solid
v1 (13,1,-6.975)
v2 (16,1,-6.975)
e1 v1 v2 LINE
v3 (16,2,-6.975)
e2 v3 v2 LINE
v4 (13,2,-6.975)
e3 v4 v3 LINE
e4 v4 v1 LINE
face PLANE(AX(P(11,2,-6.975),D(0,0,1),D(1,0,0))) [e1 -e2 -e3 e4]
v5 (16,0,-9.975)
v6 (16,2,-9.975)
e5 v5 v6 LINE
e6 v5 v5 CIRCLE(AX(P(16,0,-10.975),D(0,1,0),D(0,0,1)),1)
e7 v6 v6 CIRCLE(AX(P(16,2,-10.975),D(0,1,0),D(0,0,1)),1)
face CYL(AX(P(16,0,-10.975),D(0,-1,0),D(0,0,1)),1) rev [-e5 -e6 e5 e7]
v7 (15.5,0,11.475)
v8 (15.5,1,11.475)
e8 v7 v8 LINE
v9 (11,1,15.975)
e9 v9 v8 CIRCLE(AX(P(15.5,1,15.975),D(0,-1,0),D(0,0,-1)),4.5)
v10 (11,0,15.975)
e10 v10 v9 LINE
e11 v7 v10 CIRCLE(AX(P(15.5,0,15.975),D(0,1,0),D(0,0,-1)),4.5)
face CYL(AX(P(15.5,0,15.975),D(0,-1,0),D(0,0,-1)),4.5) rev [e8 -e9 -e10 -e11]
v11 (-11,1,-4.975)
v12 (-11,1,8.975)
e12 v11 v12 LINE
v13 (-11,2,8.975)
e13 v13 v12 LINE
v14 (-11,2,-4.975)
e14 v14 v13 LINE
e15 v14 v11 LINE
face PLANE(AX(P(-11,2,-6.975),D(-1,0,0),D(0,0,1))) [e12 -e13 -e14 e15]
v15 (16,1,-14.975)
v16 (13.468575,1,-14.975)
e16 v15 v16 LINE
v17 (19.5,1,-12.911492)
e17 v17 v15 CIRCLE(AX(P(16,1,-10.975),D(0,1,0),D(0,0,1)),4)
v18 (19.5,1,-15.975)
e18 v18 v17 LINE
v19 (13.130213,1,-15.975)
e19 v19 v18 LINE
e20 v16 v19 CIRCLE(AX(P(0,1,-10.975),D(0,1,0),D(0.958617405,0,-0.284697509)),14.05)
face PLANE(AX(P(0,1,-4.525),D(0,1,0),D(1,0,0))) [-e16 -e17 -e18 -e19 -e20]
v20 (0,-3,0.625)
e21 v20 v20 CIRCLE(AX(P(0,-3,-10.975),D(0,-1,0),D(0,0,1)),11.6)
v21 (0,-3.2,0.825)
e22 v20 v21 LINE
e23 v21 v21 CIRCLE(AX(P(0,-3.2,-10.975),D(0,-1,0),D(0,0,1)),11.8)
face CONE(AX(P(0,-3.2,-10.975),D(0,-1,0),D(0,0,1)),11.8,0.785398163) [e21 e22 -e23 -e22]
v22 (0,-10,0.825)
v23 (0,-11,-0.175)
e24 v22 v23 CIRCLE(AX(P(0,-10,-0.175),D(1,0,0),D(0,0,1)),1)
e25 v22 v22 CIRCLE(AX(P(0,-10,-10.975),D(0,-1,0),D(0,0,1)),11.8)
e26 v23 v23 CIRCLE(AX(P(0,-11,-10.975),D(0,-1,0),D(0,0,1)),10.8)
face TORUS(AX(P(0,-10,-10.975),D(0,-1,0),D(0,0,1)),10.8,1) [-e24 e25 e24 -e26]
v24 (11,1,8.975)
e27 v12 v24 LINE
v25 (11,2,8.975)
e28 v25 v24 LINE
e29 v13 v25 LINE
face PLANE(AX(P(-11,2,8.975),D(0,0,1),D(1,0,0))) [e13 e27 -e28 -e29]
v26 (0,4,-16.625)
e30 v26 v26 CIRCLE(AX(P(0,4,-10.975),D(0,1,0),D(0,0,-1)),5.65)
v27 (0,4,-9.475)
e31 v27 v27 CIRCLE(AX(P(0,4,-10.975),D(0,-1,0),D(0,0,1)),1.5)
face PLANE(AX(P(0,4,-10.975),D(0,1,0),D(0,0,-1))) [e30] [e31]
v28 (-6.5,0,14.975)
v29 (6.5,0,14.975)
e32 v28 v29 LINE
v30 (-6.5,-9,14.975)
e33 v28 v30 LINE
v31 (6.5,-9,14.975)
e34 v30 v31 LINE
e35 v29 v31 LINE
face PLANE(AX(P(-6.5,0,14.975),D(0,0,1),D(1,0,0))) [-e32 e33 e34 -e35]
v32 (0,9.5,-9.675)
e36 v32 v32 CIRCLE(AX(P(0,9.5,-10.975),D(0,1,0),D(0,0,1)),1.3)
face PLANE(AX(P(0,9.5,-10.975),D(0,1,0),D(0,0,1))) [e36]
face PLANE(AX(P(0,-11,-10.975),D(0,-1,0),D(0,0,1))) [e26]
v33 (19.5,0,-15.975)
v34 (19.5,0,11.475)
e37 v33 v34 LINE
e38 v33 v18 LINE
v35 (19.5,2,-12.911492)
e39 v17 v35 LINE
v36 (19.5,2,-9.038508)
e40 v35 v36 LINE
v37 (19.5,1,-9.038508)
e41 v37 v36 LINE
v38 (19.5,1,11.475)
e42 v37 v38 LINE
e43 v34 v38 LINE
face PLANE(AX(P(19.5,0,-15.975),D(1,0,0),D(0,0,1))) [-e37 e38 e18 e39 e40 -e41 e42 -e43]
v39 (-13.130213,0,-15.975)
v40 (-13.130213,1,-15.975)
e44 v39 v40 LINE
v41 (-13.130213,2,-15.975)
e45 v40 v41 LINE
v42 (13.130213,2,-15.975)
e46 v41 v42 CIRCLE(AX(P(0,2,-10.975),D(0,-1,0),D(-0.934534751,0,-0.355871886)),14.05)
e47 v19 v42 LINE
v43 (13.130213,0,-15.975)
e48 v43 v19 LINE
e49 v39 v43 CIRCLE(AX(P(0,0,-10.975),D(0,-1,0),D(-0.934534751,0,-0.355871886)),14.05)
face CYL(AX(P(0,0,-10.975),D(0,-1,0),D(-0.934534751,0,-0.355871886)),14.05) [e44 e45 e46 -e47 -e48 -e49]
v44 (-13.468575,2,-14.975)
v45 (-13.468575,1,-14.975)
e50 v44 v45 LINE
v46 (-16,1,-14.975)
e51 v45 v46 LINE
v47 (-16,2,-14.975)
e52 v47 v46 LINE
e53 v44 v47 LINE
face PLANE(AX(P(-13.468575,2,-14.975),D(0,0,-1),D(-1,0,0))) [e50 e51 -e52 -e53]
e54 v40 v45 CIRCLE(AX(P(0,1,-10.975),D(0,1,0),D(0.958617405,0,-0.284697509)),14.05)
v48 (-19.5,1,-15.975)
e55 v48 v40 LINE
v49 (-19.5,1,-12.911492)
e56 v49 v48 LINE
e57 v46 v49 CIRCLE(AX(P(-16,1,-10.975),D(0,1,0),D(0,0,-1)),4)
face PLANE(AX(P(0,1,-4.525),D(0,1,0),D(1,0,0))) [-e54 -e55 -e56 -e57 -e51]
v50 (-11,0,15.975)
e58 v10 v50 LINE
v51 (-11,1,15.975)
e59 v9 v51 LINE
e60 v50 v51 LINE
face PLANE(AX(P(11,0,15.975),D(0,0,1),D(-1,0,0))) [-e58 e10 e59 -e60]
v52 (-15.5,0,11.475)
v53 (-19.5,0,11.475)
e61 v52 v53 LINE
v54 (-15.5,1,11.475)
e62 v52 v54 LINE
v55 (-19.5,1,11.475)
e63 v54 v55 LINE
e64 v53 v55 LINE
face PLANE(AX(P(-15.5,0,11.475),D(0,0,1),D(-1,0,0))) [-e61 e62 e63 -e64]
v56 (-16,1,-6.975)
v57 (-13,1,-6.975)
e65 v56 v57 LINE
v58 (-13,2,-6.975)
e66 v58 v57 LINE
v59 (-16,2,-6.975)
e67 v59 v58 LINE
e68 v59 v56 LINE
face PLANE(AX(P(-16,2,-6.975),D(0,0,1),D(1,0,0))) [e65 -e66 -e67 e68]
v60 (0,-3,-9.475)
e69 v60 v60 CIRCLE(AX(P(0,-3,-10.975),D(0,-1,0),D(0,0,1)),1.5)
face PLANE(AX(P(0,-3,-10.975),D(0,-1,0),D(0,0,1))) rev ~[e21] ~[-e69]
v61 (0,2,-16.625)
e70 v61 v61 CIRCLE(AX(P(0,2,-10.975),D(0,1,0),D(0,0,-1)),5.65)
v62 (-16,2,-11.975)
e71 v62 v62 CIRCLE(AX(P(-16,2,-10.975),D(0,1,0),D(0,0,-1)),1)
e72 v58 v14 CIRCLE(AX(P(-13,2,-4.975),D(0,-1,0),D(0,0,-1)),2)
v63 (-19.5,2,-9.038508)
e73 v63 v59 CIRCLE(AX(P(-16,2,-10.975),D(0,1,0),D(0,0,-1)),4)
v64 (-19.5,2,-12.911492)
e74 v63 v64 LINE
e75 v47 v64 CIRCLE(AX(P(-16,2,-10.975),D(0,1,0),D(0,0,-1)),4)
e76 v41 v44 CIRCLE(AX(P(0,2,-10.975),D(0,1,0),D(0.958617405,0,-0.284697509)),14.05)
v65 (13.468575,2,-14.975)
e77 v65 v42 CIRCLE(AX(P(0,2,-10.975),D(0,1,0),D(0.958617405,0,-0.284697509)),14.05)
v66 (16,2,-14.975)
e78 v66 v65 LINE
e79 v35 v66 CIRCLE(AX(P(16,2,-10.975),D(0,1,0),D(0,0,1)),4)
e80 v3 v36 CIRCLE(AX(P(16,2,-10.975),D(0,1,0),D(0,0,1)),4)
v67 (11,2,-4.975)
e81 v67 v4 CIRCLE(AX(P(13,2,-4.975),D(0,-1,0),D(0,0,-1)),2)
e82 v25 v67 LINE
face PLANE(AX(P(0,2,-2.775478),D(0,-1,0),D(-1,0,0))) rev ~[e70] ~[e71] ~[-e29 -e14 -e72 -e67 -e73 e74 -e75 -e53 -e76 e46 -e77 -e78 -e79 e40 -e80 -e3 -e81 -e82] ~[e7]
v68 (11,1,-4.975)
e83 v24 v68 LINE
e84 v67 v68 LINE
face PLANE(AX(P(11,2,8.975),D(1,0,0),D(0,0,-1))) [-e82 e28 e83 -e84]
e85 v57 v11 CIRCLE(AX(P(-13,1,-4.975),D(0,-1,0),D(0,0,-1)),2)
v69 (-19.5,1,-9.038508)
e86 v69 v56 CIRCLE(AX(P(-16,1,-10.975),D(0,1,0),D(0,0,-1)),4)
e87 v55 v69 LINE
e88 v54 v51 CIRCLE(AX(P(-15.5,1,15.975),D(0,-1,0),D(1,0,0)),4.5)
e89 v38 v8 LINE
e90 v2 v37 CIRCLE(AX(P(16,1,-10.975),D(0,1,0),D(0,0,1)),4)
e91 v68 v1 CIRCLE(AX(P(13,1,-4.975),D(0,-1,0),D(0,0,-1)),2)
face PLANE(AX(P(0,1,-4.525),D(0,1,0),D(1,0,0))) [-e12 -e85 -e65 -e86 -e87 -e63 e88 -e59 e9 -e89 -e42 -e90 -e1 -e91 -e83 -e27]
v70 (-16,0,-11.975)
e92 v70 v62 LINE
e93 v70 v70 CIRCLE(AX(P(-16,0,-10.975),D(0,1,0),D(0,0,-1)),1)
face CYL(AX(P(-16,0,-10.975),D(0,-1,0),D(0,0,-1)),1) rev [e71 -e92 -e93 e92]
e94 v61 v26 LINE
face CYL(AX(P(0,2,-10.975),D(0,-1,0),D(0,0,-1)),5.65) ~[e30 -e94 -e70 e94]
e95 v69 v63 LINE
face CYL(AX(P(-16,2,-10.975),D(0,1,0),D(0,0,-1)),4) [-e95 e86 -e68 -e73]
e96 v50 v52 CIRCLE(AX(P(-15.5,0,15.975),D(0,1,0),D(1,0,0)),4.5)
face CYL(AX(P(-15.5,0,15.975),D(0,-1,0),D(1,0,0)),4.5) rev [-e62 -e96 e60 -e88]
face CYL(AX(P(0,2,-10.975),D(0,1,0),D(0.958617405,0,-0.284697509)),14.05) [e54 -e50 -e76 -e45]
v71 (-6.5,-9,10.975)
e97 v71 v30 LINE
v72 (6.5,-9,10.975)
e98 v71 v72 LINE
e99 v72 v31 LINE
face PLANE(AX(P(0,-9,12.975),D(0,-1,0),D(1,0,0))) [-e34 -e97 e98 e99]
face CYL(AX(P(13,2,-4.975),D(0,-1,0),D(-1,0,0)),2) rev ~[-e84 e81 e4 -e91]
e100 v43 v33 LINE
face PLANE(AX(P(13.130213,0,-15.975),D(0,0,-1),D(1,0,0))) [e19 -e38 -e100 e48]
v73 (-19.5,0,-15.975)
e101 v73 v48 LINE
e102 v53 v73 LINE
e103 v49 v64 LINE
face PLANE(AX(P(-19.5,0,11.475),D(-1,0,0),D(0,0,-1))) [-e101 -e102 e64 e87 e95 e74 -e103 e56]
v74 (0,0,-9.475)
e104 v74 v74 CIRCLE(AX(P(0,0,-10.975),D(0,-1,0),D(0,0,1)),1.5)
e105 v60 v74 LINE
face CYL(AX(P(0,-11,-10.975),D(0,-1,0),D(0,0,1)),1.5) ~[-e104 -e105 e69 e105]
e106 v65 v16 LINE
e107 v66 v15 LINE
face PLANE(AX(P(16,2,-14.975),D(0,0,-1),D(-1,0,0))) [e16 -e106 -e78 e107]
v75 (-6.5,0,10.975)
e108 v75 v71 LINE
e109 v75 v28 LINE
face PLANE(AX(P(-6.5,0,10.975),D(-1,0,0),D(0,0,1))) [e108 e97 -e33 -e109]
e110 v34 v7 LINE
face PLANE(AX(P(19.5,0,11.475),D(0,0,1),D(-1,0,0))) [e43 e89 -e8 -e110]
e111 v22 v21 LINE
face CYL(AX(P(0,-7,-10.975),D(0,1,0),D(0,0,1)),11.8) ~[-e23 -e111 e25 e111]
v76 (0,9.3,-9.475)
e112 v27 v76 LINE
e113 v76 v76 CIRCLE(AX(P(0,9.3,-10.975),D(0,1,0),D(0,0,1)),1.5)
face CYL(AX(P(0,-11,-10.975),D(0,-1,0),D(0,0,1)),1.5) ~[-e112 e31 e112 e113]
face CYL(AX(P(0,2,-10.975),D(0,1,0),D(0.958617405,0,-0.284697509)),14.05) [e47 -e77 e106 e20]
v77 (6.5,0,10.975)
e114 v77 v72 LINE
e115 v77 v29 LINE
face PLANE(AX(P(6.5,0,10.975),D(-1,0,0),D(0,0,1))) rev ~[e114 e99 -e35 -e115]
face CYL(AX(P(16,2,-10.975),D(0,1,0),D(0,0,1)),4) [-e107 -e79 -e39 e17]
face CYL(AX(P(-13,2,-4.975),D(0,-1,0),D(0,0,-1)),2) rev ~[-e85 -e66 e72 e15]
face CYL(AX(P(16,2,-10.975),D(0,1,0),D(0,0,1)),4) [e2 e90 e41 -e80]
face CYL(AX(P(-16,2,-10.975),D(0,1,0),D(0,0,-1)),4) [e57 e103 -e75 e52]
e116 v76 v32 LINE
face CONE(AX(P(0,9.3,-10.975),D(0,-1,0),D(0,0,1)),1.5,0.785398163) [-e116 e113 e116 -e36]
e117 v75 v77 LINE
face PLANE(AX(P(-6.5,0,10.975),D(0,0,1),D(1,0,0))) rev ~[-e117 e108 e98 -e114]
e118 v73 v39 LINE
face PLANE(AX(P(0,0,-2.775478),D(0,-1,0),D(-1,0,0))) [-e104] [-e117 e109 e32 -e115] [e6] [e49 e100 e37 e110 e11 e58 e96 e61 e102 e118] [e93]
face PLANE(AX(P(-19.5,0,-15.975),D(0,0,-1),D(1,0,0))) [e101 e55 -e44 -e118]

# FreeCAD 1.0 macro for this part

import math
import FreeCAD as App
import Part
import Sketcher

V = App.Vector


def edges_at(feature, points):
    """Names of the edges that pass closest to the given points."""
    edges = feature.Shape.Edges
    near = lambda p: min(range(len(edges)), key=lambda i: edges[i].distToShape(Part.Vertex(*p))[0])
    return sorted({f"Edge{near(p) + 1}" for p in points})

doc = App.newDocument("Part")
params = doc.addObject("Spreadsheet::Sheet", "Params")
for row, (alias, value) in enumerate([
    ("sketch1_diameter", "2 mm"),
    ("sketch1_radius", "4.5 mm"),
    ("sketch1_width", "4 mm"),
    ("sketch1_width2", "22 mm"),
    ("sketch1_radius2", "14.05 mm"),
    ("pad1_length", "2 mm"),
    ("sketch2_diameter", "11.3 mm"),
    ("pad2_length", "2 mm"),
    ("sketch3_diameter", "3 mm"),
    ("pad3_length", "5.5 mm"),
    ("pad3_length2", "15 mm"),
    ("sketch4_width", "8 mm"),
    ("sketch4_height", "11.8 mm"),
    ("revolution_angle", "360 deg"),
    ("fillet_radius", "1 mm"),
    ("sketch5_radius", "4 mm"),
    ("sketch5_width", "22 mm"),
    ("sketch5_width2", "5 mm"),
    ("sketch5_radius2", "14.05 mm"),
    ("sketch5_height", "15.95 mm"),
    ("pocket1_length", "1 mm"),
    ("fillet2_radius", "2 mm"),
    ("chamfer_size", "0.2 mm"),
    ("sketch6_width", "13 mm"),
    ("sketch6_height", "4 mm"),
    ("pad4_length", "9 mm"),
], start=1):
    params.set(f"A{row}", alias)
    params.set(f"B{row}", "=" + value)
    params.setAlias(f"B{row}", alias)

body = doc.addObject("PartDesign::Body", "Body")

# Sketch on XZ plane
sketch1 = body.newObject("Sketcher::SketchObject", "Sketch")
sketch1.AttachmentSupport = (doc.getObject("XZ_Plane"), [""])
sketch1.MapMode = "FlatFace"
sketch1.addGeometry([
    Part.LineSegment(V(-13.1, -16, 0), V(-19.5, -16, 0)),  # 0
    Part.LineSegment(V(-19.5, -16, 0), V(-19.5, 11.5, 0)),  # 1
    Part.LineSegment(V(-19.5, 11.5, 0), V(-15.5, 11.5, 0)),  # 2
    Part.ArcOfCircle(Part.Circle(V(-15.5, 16, 0), V(0, 0, 1), 4.5), math.radians(-90), math.radians(0)),  # 3
    Part.LineSegment(V(-11, 16, 0), V(11, 16, 0)),  # 4
    Part.ArcOfCircle(Part.Circle(V(15.5, 16, 0), V(0, 0, 1), 4.5), math.radians(-180), math.radians(-90)),  # 5
    Part.LineSegment(V(15.5, 11.5, 0), V(19.5, 11.5, 0)),  # 6
    Part.LineSegment(V(19.5, 11.5, 0), V(19.5, -16, 0)),  # 7
    Part.LineSegment(V(19.5, -16, 0), V(13.1, -16, 0)),  # 8
    Part.ArcOfCircle(Part.Circle(V(0, -11, 0), V(0, 0, 1), 14), math.radians(-159), math.radians(-21)),  # 9
    Part.Circle(V(16, -11, 0), V(0, 0, 1), 1),  # 10
    Part.Circle(V(-16, -11, 0), V(0, 0, 1), 1),  # 11
], False)
sketch1.addConstraint([
    Sketcher.Constraint("Coincident", 0, 2, 1, 1),
    Sketcher.Constraint("Coincident", 1, 2, 2, 1),
    Sketcher.Constraint("Tangent", 2, 2, 3, 1),
    Sketcher.Constraint("Coincident", 3, 2, 4, 1),
    Sketcher.Constraint("Coincident", 4, 2, 5, 1),
    Sketcher.Constraint("Tangent", 5, 2, 6, 1),
    Sketcher.Constraint("Coincident", 6, 2, 7, 1),
    Sketcher.Constraint("Coincident", 7, 2, 8, 1),
    Sketcher.Constraint("Coincident", 8, 2, 9, 2),
    Sketcher.Constraint("Coincident", 9, 1, 0, 1),
    Sketcher.Constraint("Horizontal", 0),
    Sketcher.Constraint("Vertical", 1),
    Sketcher.Constraint("Horizontal", 2),
    Sketcher.Constraint("Horizontal", 4),
    Sketcher.Constraint("Horizontal", 6),
    Sketcher.Constraint("Vertical", 7),
    Sketcher.Constraint("Horizontal", 8),
    Sketcher.Constraint("Equal", 3, 5),
    Sketcher.Constraint("Equal", 10, 11),
    Sketcher.Constraint("Symmetric", 3, 3, 5, 3, -2),
    Sketcher.Constraint("Symmetric", 10, 3, 11, 3, -2),
    Sketcher.Constraint("Symmetric", 0, 2, 7, 2, -2),
    Sketcher.Constraint("PointOnObject", 9, 3, -2),
    Sketcher.Constraint("Horizontal", 9, 3, 10, 3),
    Sketcher.Constraint("Horizontal", 5, 3, 3, 2),
    Sketcher.Constraint("Diameter", 10, 2.0),
    Sketcher.Constraint("Radius", 3, 4.5),
    Sketcher.Constraint("DistanceX", 2, 1, 2, 2, 4.0),
    Sketcher.Constraint("DistanceX", 4, 1, 4, 2, 22.0),
    Sketcher.Constraint("Radius", 9, 14.05),
    Sketcher.Constraint("DistanceX", -1, 1, 10, 3, 16.0),
    Sketcher.Constraint("DistanceY", 0, 2, 11, 3, 5.0),
    Sketcher.Constraint("DistanceY", 1, 1, 1, 2, 27.45),
    Sketcher.Constraint("DistanceY", -1, 1, 3, 3, 15.975),
])
sketch1.setExpression("Constraints[25]", "Params.sketch1_diameter")
sketch1.setExpression("Constraints[26]", "Params.sketch1_radius")
sketch1.setExpression("Constraints[27]", "Params.sketch1_width")
sketch1.setExpression("Constraints[28]", "Params.sketch1_width2")
sketch1.setExpression("Constraints[29]", "Params.sketch1_radius2")
pad1 = body.newObject("PartDesign::Pad", "Pad")
pad1.Profile = sketch1
pad1.setExpression("Length", "Params.pad1_length")
pad1.Reversed = True

# Sketch on XZ plane
sketch2 = body.newObject("Sketcher::SketchObject", "Sketch001")
sketch2.AttachmentSupport = (doc.getObject("XZ_Plane"), [""])
sketch2.MapMode = "FlatFace"
sketch2.AttachmentOffset = App.Placement(V(0, 0, -2), App.Rotation())
sketch2.addGeometry(Part.Circle(V(0, -11, 0), V(0, 0, 1), 6), False)
sketch2.addConstraint([
    Sketcher.Constraint("PointOnObject", 0, 3, -2),
    Sketcher.Constraint("Diameter", 0, 11.3),
    Sketcher.Constraint("DistanceY", 0, 3, -1, 1, 10.975),
])
sketch2.setExpression("Constraints[1]", "Params.sketch2_diameter")
pad2 = body.newObject("PartDesign::Pad", "Pad001")
pad2.Profile = sketch2
pad2.setExpression("Length", "Params.pad2_length")
pad2.Reversed = True

# Sketch on XZ plane
sketch3 = body.newObject("Sketcher::SketchObject", "Sketch002")
sketch3.AttachmentSupport = (doc.getObject("XZ_Plane"), [""])
sketch3.MapMode = "FlatFace"
sketch3.AttachmentOffset = App.Placement(V(0, 0, -4), App.Rotation())
sketch3.addGeometry(Part.Circle(V(0, -11, 0), V(0, 0, 1), 1.5), False)
sketch3.addConstraint([
    Sketcher.Constraint("PointOnObject", 0, 3, -2),
    Sketcher.Constraint("Diameter", 0, 3.0),
    Sketcher.Constraint("DistanceY", 0, 3, -1, 1, 10.975),
])
sketch3.setExpression("Constraints[1]", "Params.sketch3_diameter")
pad3 = body.newObject("PartDesign::Pad", "Pad002")
pad3.Profile = sketch3
pad3.Type = "TwoLengths"
pad3.setExpression("Length", "Params.pad3_length")
pad3.setExpression("Length2", "Params.pad3_length2")
pad3.Reversed = True

# Sketch on YZ plane
sketch4 = body.newObject("Sketcher::SketchObject", "Sketch003")
sketch4.AttachmentSupport = (doc.getObject("YZ_Plane"), [""])
sketch4.MapMode = "FlatFace"
sketch4.addGeometry([
    Part.LineSegment(V(-3, 1, 0), V(-11, 1, 0)),
    Part.LineSegment(V(-11, 1, 0), V(-11, -11, 0)),
    Part.LineSegment(V(-11, -11, 0), V(-3, -11, 0)),
    Part.LineSegment(V(-3, -11, 0), V(-3, 1, 0)),
], False)
sketch4.addGeometry(Part.LineSegment(V(-3, -11, 0), V(-11, -11, 0)), True)  # axis
sketch4.addConstraint([
    Sketcher.Constraint("Coincident", 0, 2, 1, 1),
    Sketcher.Constraint("Coincident", 1, 2, 2, 1),
    Sketcher.Constraint("Coincident", 2, 2, 3, 1),
    Sketcher.Constraint("Coincident", 3, 2, 0, 1),
    Sketcher.Constraint("Horizontal", 0),
    Sketcher.Constraint("Vertical", 1),
    Sketcher.Constraint("Horizontal", 2),
    Sketcher.Constraint("Vertical", 3),
    Sketcher.Constraint("Horizontal", 4),
    Sketcher.Constraint("Coincident", 4, 1, 2, 2),
    Sketcher.Constraint("Vertical", 0, 2, 4, 2),
    Sketcher.Constraint("DistanceX", 0, 2, 0, 1, 8.0),
    Sketcher.Constraint("DistanceY", 1, 2, 1, 1, 11.8),
    Sketcher.Constraint("DistanceX", 0, 2, -1, 1, 11.0),
    Sketcher.Constraint("DistanceY", -1, 1, 0, 2, 0.825),
])
sketch4.setExpression("Constraints[11]", "Params.sketch4_width")
sketch4.setExpression("Constraints[12]", "Params.sketch4_height")
revolution = body.newObject("PartDesign::Revolution", "Revolution")
revolution.Profile = sketch4
revolution.ReferenceAxis = (sketch4, ["Axis0"])
revolution.setExpression("Angle", "Params.revolution_angle")
doc.recompute()

fillet = body.newObject("PartDesign::Fillet", "Fillet")
fillet.Base = (revolution, edges_at(revolution, [(0, -11, -22.775)]))
fillet.setExpression("Radius", "Params.fillet_radius")

# Sketch on XZ plane
sketch5 = body.newObject("Sketcher::SketchObject", "Sketch004")
sketch5.AttachmentSupport = (doc.getObject("XZ_Plane"), [""])
sketch5.MapMode = "FlatFace"
sketch5.AttachmentOffset = App.Placement(V(0, 0, -2), App.Rotation())
sketch5.addGeometry([
    Part.LineSegment(V(-26.5, -32, 0), V(-26.5, 23, 0)),  # 0
    Part.LineSegment(V(-26.5, 23, 0), V(26.5, 23, 0)),  # 1
    Part.LineSegment(V(26.5, 23, 0), V(26.5, -32, 0)),  # 2
    Part.LineSegment(V(26.5, -32, 0), V(-26.5, -32, 0)),  # 3
    Part.LineSegment(V(11, 9, 0), V(-11, 9, 0)),  # 4
    Part.LineSegment(V(-11, 9, 0), V(-11, -7, 0)),  # 5
    Part.LineSegment(V(-11, -7, 0), V(-16, -7, 0)),  # 6
    Part.ArcOfCircle(Part.Circle(V(-16, -11, 0), V(0, 0, 1), 4), math.radians(90), math.radians(270)),  # 7
    Part.LineSegment(V(-16, -15, 0), V(-13.5, -15, 0)),  # 8
    Part.ArcOfCircle(Part.Circle(V(0, -11, 0), V(0, 0, 1), 14.1), math.radians(-163), math.radians(-17)),  # 9
    Part.LineSegment(V(13.5, -15, 0), V(16, -15, 0)),  # 10
    Part.ArcOfCircle(Part.Circle(V(16, -11, 0), V(0, 0, 1), 4), math.radians(-90), math.radians(90)),  # 11
    Part.LineSegment(V(16, -7, 0), V(11, -7, 0)),  # 12
    Part.LineSegment(V(11, -7, 0), V(11, 9, 0)),  # 13
], False)
sketch5.addConstraint([
    Sketcher.Constraint("Coincident", 0, 2, 1, 1),
    Sketcher.Constraint("Coincident", 1, 2, 2, 1),
    Sketcher.Constraint("Coincident", 2, 2, 3, 1),
    Sketcher.Constraint("Coincident", 3, 2, 0, 1),
    Sketcher.Constraint("Coincident", 4, 2, 5, 1),
    Sketcher.Constraint("Coincident", 5, 2, 6, 1),
    Sketcher.Constraint("Tangent", 6, 2, 7, 1),
    Sketcher.Constraint("Tangent", 7, 2, 8, 1),
    Sketcher.Constraint("Coincident", 8, 2, 9, 1),
    Sketcher.Constraint("Coincident", 9, 2, 10, 1),
    Sketcher.Constraint("Tangent", 10, 2, 11, 1),
    Sketcher.Constraint("Tangent", 11, 2, 12, 1),
    Sketcher.Constraint("Coincident", 12, 2, 13, 1),
    Sketcher.Constraint("Coincident", 13, 2, 4, 1),
    Sketcher.Constraint("Vertical", 0),
    Sketcher.Constraint("Horizontal", 1),
    Sketcher.Constraint("Vertical", 2),
    Sketcher.Constraint("Horizontal", 3),
    Sketcher.Constraint("Horizontal", 4),
    Sketcher.Constraint("Vertical", 5),
    Sketcher.Constraint("Horizontal", 6),
    Sketcher.Constraint("Horizontal", 8),
    Sketcher.Constraint("Horizontal", 10),
    Sketcher.Constraint("Horizontal", 12),
    Sketcher.Constraint("Vertical", 13),
    Sketcher.Constraint("Equal", 7, 11),
    Sketcher.Constraint("Symmetric", 7, 3, 11, 3, -2),
    Sketcher.Constraint("PointOnObject", 9, 3, -2),
    Sketcher.Constraint("Horizontal", 7, 3, 9, 3),
    Sketcher.Constraint("Equal", 6, 12),
    Sketcher.Constraint("Radius", 7, 4.0),
    Sketcher.Constraint("DistanceX", 4, 2, 4, 1, 22.0),
    Sketcher.Constraint("DistanceX", 6, 2, 6, 1, 5.0),
    Sketcher.Constraint("Radius", 9, 14.05),
    Sketcher.Constraint("DistanceY", 5, 2, 5, 1, 15.95),
    Sketcher.Constraint("DistanceX", 1, 1, 1, 2, 53.038),
    Sketcher.Constraint("DistanceY", 0, 1, 0, 2, 55.038),
    Sketcher.Constraint("DistanceY", 7, 3, -1, 1, 10.975),
    Sketcher.Constraint("DistanceX", 0, 2, -1, 1, 26.519),
    Sketcher.Constraint("DistanceY", -1, 1, 0, 2, 22.994),
])
sketch5.setExpression("Constraints[30]", "Params.sketch5_radius")
sketch5.setExpression("Constraints[31]", "Params.sketch5_width")
sketch5.setExpression("Constraints[32]", "Params.sketch5_width2")
sketch5.setExpression("Constraints[33]", "Params.sketch5_radius2")
sketch5.setExpression("Constraints[34]", "Params.sketch5_height")
pocket1 = body.newObject("PartDesign::Pocket", "Pocket")
pocket1.Profile = sketch5
pocket1.setExpression("Length", "Params.pocket1_length")
pocket1.Reversed = True
doc.recompute()

fillet2 = body.newObject("PartDesign::Fillet", "Fillet001")
fillet2.Base = (pocket1, edges_at(pocket1, [(-11, 1.5, -6.975), (11, 1.5, -6.975)]))
fillet2.setExpression("Radius", "Params.fillet2_radius")
doc.recompute()

chamfer = body.newObject("PartDesign::Chamfer", "Chamfer")
chamfer.Base = (fillet2, edges_at(fillet2, [(0, 9.5, -12.475), (0, -3, -22.775)]))
chamfer.setExpression("Size", "Params.chamfer_size")

# Sketch on XZ plane
sketch6 = body.newObject("Sketcher::SketchObject", "Sketch005")
sketch6.AttachmentSupport = (doc.getObject("XZ_Plane"), [""])
sketch6.MapMode = "FlatFace"
sketch6.addGeometry([
    Part.LineSegment(V(-6.5, 15, 0), V(-6.5, 11, 0)),
    Part.LineSegment(V(-6.5, 11, 0), V(6.5, 11, 0)),
    Part.LineSegment(V(6.5, 11, 0), V(6.5, 15, 0)),
    Part.LineSegment(V(6.5, 15, 0), V(-6.5, 15, 0)),
], False)
sketch6.addConstraint([
    Sketcher.Constraint("Coincident", 0, 2, 1, 1),
    Sketcher.Constraint("Coincident", 1, 2, 2, 1),
    Sketcher.Constraint("Coincident", 2, 2, 3, 1),
    Sketcher.Constraint("Coincident", 3, 2, 0, 1),
    Sketcher.Constraint("Vertical", 0),
    Sketcher.Constraint("Horizontal", 1),
    Sketcher.Constraint("Vertical", 2),
    Sketcher.Constraint("Horizontal", 3),
    Sketcher.Constraint("DistanceX", 1, 1, 1, 2, 13.0),
    Sketcher.Constraint("DistanceY", 0, 2, 0, 1, 4.0),
    Sketcher.Constraint("DistanceX", 0, 2, -1, 1, 6.5),
    Sketcher.Constraint("DistanceY", -1, 1, 0, 2, 10.975),
])
sketch6.setExpression("Constraints[8]", "Params.sketch6_width")
sketch6.setExpression("Constraints[9]", "Params.sketch6_height")
pad4 = body.newObject("PartDesign::Pad", "Pad003")
pad4.Profile = sketch6
pad4.setExpression("Length", "Params.pad4_length")

doc.recompute()
